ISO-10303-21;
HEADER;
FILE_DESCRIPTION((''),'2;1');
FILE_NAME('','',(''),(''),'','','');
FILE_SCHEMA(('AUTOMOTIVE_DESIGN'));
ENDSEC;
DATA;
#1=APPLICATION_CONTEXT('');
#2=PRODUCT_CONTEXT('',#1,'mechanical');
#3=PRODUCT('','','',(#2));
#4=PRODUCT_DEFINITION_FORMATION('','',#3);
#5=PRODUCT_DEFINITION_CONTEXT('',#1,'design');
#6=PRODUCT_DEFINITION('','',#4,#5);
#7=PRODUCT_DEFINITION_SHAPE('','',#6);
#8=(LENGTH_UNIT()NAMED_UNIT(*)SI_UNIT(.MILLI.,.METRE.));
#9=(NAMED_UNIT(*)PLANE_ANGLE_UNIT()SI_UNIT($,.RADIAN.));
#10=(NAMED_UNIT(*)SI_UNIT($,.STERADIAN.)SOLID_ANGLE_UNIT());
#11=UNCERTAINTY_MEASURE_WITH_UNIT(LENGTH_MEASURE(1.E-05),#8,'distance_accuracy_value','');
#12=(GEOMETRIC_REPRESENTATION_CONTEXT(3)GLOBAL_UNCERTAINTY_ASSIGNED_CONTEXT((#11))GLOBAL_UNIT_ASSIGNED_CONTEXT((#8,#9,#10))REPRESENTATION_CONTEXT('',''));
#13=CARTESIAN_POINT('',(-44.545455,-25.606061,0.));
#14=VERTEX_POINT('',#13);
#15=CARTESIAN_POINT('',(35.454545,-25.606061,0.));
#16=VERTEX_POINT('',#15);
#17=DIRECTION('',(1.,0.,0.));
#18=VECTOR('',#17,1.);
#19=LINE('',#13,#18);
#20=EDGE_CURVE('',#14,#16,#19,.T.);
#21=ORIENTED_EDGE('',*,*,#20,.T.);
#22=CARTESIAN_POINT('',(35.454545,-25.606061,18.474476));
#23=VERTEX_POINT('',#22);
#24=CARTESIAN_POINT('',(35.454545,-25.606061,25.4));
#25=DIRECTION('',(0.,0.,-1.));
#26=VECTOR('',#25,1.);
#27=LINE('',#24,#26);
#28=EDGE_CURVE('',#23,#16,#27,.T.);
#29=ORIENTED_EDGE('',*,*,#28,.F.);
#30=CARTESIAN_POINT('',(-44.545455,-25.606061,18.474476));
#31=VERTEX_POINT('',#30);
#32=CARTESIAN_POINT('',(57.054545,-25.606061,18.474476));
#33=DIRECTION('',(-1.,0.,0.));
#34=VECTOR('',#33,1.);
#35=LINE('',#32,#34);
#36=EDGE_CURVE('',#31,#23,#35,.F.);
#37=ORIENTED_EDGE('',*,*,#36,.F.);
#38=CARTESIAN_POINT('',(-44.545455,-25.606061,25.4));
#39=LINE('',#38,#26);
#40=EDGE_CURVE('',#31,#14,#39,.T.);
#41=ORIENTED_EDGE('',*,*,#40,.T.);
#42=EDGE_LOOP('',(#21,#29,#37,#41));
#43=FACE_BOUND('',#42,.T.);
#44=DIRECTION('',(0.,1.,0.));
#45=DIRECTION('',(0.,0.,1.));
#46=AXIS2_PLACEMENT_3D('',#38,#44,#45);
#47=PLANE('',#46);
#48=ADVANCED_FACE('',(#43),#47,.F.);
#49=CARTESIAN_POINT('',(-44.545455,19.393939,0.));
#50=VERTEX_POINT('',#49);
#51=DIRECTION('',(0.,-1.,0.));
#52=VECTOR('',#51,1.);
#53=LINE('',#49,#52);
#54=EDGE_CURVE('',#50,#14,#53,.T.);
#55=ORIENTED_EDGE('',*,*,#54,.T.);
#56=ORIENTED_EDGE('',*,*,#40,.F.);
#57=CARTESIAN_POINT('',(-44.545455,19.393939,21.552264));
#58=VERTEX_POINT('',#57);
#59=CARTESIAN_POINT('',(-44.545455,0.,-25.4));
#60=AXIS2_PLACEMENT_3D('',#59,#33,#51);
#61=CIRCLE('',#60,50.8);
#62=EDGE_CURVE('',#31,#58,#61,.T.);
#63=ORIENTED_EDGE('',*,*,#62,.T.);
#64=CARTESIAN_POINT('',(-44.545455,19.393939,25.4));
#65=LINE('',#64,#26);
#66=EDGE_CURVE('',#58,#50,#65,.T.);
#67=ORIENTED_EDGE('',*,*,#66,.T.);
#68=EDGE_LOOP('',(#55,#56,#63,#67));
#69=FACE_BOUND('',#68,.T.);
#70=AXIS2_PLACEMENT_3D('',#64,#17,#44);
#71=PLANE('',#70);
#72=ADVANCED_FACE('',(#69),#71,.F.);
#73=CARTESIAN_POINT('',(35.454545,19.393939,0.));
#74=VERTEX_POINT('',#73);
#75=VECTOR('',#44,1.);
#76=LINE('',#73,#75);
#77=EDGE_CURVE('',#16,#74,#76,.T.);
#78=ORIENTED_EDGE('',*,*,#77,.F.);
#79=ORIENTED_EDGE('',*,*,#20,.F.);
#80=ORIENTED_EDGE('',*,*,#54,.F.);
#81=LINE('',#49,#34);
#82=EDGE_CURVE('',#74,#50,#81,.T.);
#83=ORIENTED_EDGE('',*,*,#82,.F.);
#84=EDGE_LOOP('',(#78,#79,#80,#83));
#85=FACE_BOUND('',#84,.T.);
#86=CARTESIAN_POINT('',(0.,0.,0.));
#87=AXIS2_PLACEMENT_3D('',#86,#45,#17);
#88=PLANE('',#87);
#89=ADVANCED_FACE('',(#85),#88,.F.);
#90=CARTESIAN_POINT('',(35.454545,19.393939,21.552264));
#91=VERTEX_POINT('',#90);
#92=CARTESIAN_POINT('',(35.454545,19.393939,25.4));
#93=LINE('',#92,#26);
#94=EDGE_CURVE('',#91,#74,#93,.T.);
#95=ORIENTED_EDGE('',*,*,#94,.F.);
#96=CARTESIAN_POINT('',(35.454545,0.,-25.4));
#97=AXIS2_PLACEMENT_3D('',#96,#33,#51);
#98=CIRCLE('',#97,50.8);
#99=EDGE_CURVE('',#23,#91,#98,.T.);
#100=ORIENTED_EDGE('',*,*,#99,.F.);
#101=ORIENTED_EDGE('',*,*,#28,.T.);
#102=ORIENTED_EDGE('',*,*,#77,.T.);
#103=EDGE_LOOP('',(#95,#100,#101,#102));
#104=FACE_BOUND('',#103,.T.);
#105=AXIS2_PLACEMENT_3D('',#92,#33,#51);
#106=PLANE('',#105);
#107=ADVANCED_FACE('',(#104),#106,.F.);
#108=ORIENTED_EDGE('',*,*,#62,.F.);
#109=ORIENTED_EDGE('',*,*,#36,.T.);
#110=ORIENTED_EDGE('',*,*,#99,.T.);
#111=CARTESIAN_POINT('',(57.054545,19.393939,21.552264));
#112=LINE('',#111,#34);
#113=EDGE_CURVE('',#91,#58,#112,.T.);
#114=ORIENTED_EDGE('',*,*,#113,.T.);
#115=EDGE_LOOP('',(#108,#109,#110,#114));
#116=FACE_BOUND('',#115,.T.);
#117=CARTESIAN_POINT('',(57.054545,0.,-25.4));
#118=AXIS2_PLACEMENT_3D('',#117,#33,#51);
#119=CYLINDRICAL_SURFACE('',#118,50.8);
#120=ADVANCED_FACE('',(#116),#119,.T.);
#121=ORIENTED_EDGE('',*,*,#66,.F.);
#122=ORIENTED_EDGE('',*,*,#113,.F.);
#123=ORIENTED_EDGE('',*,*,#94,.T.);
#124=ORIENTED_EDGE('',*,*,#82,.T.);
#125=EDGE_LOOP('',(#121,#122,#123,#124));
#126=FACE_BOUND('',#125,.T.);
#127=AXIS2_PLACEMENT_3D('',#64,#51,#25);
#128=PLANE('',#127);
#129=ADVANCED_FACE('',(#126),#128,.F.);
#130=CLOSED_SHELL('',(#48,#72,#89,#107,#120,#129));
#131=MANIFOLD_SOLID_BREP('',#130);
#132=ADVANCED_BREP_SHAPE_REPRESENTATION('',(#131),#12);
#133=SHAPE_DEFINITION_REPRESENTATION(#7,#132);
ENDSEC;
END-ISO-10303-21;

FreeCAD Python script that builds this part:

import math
import FreeCAD as App
import Part
import Sketcher
from FreeCAD import Vector
Q = App.Units.Quantity

doc = App.newDocument("Part")
params = doc.addObject("Spreadsheet::Sheet", "Params")
for row, (alias, value) in enumerate([
    ("sketch1_width", "80 mm"),
    ("sketch1_height", "45 mm"),
    ("pad1_length", "25.4 mm"),
    ("sketch2_radius", "50.8 mm"),
    ("pocket1_length", "101.6 mm"),
], start=1):
    params.set(f"A{row}", alias)
    params.set(f"B{row}", "=" + value)
    params.setAlias(f"B{row}", alias)

body = doc.addObject("PartDesign::Body", "Body")

sketch1 = body.newObject("Sketcher::SketchObject", "Sketch")
sketch1.AttachmentSupport = (doc.getObject("XY_Plane"), [""])
sketch1.MapMode = "FlatFace"
sketch1.addGeometry([
    Part.LineSegment(Vector(-45, 19, 0), Vector(-45, -26, 0)),
    Part.LineSegment(Vector(-45, -26, 0), Vector(35, -26, 0)),
    Part.LineSegment(Vector(35, -26, 0), Vector(35, 19, 0)),
    Part.LineSegment(Vector(35, 19, 0), Vector(-45, 19, 0)),
], False)
sketch1.addConstraint([
    Sketcher.Constraint("Coincident", 0, 2, 1, 1),
    Sketcher.Constraint("Coincident", 1, 2, 2, 1),
    Sketcher.Constraint("Coincident", 2, 2, 3, 1),
    Sketcher.Constraint("Coincident", 3, 2, 0, 1),
    Sketcher.Constraint("Vertical", 0),
    Sketcher.Constraint("Horizontal", 1),
    Sketcher.Constraint("Vertical", 2),
    Sketcher.Constraint("Horizontal", 3),
    Sketcher.Constraint("DistanceX", 1, 1, 1, 2, Q("80 mm")),
    Sketcher.Constraint("DistanceY", 0, 2, 0, 1, Q("45 mm")),
    Sketcher.Constraint("DistanceY", 0, 2, -1, 1, Q("25.606061 mm")),
    Sketcher.Constraint("DistanceX", 0, 2, -1, 1, Q("44.545455 mm")),
])
sketch1.setExpression("Constraints[8]", "Params.sketch1_width")
sketch1.setExpression("Constraints[9]", "Params.sketch1_height")
pad1 = body.newObject("PartDesign::Pad", "Pad")
pad1.Profile = sketch1
pad1.setExpression("Length", "Params.pad1_length")

sketch2 = body.newObject("Sketcher::SketchObject", "Sketch001")
sketch2.AttachmentSupport = (doc.getObject("YZ_Plane"), [""])
sketch2.MapMode = "FlatFace"
sketch2.AttachmentOffset = App.Placement(Vector(0, 0, -44.545455), App.Rotation())
sketch2.addGeometry([
    Part.ArcOfCircle(Part.Circle(Vector(0, -25.4, 0), Vector(0, 0, 1), 50.8), math.radians(68), math.radians(90)),
    Part.LineSegment(Vector(0, 25.4, 0), Vector(19.4, 25.4, 0)),
    Part.LineSegment(Vector(19.4, 25.4, 0), Vector(19.4, 21.6, 0)),
    Part.LineSegment(Vector(-25.6, 25.4, 0), Vector(0, 25.4, 0)),
    Part.ArcOfCircle(Part.Circle(Vector(0, -25.4, 0), Vector(0, 0, 1), 50.8), math.radians(90), math.radians(120)),
    Part.LineSegment(Vector(-25.6, 18.5, 0), Vector(-25.6, 25.4, 0)),
], False)
sketch2.addConstraint([
    Sketcher.Constraint("Tangent", 0, 2, 1, 1),
    Sketcher.Constraint("Coincident", 1, 2, 2, 1),
    Sketcher.Constraint("Coincident", 2, 2, 0, 1),
    Sketcher.Constraint("Tangent", 3, 2, 4, 1),
    Sketcher.Constraint("Coincident", 4, 2, 5, 1),
    Sketcher.Constraint("Coincident", 5, 2, 3, 1),
    Sketcher.Constraint("Horizontal", 1),
    Sketcher.Constraint("Vertical", 2),
    Sketcher.Constraint("Horizontal", 3),
    Sketcher.Constraint("Vertical", 5),
    Sketcher.Constraint("Coincident", 4, 3, 0, 3),
    Sketcher.Constraint("Equal", 0, 4),
    Sketcher.Constraint("PointOnObject", 0, 3, -2),
    Sketcher.Constraint("Radius", 0, Q("50.8 mm")),
    Sketcher.Constraint("DistanceX", 4, 2, 2, 2, Q("45 mm")),
    Sketcher.Constraint("DistanceY", 0, 3, -1, 1, Q("25.4 mm")),
    Sketcher.Constraint("DistanceX", 1, 1, 1, 2, Q("19.393939 mm")),
])
sketch2.setExpression("Constraints[13]", "Params.sketch2_radius")
pocket1 = body.newObject("PartDesign::Pocket", "Pocket")
pocket1.Profile = sketch2
pocket1.setExpression("Length", "Params.pocket1_length")
pocket1.Reversed = True

doc.recompute()
